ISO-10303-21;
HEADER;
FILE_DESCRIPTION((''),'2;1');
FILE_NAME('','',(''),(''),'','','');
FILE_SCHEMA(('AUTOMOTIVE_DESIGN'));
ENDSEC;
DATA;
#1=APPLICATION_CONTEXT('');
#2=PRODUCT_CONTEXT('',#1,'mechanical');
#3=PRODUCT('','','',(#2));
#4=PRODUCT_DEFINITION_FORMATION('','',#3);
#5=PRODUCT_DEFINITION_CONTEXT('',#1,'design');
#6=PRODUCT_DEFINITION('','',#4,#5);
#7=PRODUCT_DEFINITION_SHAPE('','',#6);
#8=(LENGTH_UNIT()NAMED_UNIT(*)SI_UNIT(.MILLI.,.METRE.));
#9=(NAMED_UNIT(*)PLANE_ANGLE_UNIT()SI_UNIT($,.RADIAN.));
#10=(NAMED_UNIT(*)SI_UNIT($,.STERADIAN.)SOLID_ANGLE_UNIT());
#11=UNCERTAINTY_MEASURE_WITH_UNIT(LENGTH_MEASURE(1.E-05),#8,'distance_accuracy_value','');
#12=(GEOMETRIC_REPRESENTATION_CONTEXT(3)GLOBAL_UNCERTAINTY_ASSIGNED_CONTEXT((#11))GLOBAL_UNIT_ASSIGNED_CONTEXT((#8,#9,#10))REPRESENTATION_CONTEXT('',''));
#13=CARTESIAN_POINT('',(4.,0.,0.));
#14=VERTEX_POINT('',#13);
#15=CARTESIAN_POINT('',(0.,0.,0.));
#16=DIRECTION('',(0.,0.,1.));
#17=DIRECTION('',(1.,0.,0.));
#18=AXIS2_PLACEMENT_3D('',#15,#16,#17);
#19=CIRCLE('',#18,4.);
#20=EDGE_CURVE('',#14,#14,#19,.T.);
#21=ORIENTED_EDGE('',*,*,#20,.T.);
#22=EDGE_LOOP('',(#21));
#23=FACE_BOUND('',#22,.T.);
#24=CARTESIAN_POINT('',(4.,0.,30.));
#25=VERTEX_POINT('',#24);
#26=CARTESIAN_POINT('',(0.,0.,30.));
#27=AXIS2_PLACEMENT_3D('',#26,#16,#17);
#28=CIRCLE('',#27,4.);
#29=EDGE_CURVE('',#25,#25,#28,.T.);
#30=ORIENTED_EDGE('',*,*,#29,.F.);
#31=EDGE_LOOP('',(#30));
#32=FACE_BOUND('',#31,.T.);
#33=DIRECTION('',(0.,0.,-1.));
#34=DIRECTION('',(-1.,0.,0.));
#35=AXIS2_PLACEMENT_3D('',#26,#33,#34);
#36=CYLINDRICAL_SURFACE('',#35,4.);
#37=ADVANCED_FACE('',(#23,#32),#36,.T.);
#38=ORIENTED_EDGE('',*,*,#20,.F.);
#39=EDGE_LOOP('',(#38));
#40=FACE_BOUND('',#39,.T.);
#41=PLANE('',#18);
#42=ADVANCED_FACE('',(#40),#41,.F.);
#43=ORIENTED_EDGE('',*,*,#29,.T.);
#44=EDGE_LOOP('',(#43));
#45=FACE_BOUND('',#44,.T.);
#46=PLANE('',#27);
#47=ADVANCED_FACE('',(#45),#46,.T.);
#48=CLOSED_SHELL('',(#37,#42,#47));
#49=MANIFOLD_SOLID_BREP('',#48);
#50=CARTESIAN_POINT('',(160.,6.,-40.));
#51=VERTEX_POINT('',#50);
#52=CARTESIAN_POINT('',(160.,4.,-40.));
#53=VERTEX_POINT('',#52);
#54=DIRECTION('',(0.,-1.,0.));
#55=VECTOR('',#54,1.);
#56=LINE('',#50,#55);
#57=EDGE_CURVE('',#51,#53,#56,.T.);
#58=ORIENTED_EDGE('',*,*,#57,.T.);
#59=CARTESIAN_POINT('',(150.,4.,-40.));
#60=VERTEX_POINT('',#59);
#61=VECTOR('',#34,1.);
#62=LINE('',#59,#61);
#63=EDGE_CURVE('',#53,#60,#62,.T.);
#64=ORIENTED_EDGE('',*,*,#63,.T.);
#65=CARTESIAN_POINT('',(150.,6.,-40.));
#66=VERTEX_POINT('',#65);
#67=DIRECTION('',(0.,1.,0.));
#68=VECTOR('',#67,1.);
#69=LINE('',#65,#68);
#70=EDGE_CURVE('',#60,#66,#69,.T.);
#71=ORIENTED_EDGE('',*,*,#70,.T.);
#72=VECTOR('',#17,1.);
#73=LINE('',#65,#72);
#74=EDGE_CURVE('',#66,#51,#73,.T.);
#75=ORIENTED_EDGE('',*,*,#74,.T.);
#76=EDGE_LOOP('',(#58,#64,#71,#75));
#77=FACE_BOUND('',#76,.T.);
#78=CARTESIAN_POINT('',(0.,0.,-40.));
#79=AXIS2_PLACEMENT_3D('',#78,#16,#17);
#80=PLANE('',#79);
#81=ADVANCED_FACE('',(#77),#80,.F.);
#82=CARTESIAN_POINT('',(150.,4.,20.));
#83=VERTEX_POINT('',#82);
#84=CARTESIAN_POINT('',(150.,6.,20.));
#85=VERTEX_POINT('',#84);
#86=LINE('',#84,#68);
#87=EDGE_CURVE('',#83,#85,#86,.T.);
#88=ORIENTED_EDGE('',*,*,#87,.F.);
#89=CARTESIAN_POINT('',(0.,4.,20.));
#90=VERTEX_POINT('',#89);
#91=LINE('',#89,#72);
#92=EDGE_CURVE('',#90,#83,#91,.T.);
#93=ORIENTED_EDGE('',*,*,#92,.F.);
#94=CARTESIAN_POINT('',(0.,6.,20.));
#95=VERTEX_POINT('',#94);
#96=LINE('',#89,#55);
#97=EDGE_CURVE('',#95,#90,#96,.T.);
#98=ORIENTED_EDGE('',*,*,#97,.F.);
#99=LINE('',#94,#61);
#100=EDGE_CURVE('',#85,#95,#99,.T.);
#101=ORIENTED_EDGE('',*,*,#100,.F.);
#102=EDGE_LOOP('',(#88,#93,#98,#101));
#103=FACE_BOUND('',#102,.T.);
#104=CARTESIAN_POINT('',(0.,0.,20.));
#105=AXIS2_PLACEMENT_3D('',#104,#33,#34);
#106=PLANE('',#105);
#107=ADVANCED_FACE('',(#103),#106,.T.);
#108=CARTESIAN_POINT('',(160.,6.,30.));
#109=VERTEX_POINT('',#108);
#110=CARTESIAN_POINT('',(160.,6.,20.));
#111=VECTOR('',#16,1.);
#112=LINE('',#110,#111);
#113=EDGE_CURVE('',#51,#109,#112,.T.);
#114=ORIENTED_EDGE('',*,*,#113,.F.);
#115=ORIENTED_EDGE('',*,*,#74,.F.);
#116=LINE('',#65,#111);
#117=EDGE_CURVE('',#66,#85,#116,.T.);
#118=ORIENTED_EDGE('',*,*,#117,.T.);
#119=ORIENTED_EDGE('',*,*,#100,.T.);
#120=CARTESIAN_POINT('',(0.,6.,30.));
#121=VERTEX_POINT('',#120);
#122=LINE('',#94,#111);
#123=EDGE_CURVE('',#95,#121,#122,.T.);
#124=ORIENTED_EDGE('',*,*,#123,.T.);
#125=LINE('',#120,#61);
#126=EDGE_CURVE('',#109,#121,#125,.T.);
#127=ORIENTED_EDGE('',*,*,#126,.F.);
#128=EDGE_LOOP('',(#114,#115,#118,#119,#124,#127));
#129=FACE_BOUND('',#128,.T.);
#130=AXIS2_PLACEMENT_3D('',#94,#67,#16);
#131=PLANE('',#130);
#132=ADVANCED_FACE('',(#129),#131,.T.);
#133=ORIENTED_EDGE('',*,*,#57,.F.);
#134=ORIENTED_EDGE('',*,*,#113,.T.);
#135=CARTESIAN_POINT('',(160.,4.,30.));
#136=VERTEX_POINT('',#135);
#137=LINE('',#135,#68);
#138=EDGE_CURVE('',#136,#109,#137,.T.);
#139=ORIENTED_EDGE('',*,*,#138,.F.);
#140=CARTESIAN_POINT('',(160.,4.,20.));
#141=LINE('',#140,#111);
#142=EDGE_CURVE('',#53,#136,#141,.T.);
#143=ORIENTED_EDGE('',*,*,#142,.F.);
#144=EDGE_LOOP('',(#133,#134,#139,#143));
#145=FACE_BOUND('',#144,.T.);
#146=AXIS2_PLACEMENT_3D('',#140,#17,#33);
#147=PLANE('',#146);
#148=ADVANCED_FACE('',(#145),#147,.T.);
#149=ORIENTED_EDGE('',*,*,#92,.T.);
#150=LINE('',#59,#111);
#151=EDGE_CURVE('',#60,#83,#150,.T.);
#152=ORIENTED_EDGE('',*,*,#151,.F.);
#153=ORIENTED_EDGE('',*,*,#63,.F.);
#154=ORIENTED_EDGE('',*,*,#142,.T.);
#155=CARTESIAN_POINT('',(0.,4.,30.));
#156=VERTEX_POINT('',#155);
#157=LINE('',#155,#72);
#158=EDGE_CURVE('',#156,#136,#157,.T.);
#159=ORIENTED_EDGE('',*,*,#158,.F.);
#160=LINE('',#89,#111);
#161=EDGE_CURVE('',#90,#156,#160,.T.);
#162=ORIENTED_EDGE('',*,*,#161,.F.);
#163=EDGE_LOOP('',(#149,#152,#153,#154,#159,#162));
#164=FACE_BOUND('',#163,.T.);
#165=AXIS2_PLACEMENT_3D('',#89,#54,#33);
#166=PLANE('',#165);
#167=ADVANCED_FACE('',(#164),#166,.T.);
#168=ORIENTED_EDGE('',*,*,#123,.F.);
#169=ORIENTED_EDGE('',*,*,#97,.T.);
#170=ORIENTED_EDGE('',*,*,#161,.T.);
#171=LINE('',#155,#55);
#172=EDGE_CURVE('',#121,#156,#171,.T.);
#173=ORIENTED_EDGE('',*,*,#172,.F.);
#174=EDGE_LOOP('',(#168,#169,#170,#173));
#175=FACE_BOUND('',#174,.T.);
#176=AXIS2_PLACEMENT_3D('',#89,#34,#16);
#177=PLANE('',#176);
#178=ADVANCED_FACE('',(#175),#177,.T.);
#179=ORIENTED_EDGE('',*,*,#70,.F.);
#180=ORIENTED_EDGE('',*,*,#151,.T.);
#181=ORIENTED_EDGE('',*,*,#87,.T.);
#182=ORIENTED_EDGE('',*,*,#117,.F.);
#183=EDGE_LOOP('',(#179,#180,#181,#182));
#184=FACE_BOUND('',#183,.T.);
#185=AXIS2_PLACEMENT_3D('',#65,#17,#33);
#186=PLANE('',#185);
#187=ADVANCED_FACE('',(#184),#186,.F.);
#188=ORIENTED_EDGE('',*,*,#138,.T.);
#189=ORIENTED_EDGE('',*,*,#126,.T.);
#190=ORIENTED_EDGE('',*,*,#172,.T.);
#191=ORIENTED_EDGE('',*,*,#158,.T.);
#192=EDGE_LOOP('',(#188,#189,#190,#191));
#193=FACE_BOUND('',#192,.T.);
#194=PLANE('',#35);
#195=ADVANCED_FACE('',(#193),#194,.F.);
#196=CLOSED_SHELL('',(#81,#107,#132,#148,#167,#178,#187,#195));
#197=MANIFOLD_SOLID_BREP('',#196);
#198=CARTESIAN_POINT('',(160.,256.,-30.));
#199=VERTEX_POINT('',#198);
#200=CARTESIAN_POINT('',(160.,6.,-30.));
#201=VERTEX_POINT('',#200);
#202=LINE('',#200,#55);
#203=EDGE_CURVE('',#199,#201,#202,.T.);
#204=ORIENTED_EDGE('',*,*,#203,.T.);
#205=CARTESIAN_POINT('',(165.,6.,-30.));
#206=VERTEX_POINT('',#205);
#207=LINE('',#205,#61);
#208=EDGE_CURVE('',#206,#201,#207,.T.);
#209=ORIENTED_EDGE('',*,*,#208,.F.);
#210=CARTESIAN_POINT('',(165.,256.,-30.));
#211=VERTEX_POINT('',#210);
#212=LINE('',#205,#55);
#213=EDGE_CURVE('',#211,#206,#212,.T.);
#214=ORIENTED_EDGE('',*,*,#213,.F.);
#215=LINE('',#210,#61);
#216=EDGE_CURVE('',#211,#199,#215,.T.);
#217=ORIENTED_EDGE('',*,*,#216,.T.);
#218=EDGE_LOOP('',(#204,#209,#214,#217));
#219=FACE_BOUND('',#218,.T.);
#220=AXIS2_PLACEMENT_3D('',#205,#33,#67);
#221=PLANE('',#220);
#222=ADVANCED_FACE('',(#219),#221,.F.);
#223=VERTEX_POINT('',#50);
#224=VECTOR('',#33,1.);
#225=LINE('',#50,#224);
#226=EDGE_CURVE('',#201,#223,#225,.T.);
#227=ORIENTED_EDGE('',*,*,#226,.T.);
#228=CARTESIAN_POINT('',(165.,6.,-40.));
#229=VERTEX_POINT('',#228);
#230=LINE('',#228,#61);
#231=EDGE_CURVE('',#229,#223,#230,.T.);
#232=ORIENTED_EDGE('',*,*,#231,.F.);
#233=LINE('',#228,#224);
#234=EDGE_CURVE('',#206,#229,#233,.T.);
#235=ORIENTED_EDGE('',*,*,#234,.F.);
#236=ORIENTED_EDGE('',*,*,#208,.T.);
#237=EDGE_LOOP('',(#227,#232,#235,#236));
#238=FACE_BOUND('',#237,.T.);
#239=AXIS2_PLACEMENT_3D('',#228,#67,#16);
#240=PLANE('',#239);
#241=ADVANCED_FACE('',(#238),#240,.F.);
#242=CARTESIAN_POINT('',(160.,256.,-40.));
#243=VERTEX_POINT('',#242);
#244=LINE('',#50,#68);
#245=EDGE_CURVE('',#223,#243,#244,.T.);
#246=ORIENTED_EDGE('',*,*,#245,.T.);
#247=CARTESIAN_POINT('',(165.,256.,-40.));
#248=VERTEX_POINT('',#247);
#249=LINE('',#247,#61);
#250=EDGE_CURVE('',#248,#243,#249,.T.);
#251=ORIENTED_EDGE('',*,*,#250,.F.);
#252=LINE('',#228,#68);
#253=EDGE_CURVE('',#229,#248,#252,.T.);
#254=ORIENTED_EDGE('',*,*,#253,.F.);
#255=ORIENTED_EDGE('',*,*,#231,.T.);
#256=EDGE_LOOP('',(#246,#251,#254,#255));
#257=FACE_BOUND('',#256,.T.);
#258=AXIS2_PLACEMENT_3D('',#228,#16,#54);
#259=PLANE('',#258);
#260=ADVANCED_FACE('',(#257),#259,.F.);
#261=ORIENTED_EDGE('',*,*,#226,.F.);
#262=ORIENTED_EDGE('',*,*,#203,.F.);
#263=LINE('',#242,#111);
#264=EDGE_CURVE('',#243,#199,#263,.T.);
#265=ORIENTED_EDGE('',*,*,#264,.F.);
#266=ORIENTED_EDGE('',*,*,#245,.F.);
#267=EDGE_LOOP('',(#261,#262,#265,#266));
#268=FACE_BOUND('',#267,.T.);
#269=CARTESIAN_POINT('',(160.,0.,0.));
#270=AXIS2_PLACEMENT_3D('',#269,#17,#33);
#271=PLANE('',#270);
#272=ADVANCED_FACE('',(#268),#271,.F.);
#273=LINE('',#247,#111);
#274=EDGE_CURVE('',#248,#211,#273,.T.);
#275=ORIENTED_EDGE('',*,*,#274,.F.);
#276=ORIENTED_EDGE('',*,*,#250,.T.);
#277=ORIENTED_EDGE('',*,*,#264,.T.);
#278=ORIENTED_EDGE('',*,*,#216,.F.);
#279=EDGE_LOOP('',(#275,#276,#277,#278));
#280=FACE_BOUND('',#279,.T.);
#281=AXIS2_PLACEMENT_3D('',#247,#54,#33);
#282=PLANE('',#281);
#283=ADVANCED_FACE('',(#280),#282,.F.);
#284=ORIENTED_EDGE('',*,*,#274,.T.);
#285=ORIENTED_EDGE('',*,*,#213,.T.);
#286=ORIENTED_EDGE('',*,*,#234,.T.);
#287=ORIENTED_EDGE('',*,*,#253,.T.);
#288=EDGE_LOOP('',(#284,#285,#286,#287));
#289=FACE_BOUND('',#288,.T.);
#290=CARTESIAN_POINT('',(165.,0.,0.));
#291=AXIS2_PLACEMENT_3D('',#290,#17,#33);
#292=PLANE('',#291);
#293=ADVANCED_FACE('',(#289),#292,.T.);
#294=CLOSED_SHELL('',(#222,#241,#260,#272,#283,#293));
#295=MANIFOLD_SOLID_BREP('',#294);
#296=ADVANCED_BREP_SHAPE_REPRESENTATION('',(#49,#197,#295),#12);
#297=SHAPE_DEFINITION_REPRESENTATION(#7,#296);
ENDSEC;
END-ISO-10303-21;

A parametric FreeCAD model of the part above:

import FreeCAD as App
import Part
import Sketcher

V = App.Vector
Q = App.Units.Quantity


def add_polygon(sketch, points):
    """Adds a closed chain of lines whose ends are joined by coincident constraints."""
    first, n = sketch.GeometryCount, len(points)
    for a, b in zip(points, points[1:] + points[:1]):
        sketch.addGeometry(Part.LineSegment(App.Vector(*a, 0), App.Vector(*b, 0)), False)
    for i in range(n):
        sketch.addConstraint(Sketcher.Constraint("Coincident", first + i, 2, first + (i + 1) % n, 1))

doc = App.newDocument("Part")
body = doc.addObject("PartDesign::Body", "Body")

# Sketch on XY plane
sketch1 = doc.addObject("Sketcher::SketchObject", "Sketch")
body.addObject(sketch1)
sketch1.AttachmentSupport = (doc.XY_Plane, [""])
sketch1.MapMode = "FlatFace"
sketch1.addGeometry(Part.Circle(V(0, 0, 0), V(0, 0, 1), 4), False)
sketch1.addConstraint([
    Sketcher.Constraint("Coincident", 0, 3, -1, 1),
    Sketcher.Constraint("Diameter", 0, Q("8 mm")),
])
pad1 = doc.addObject("PartDesign::Pad", "Pad")
body.addObject(pad1)
pad1.Profile = sketch1
pad1.Length = 30
body2 = doc.addObject("PartDesign::Body", "Body001")

# Sketch on XY plane
sketch2 = doc.addObject("Sketcher::SketchObject", "Sketch001")
body2.addObject(sketch2)
sketch2.AttachmentSupport = (doc.getObject("XY_Plane001"), [""])
sketch2.MapMode = "FlatFace"
sketch2.AttachmentOffset = App.Placement(V(0, 0, 30), App.Rotation())
add_polygon(sketch2, [(0, 6), (0, 4), (160, 4), (160, 6)])  # lines 0-3
sketch2.addConstraint([
    Sketcher.Constraint("Vertical", 0),
    Sketcher.Constraint("Horizontal", 1),
    Sketcher.Constraint("Vertical", 2),
    Sketcher.Constraint("Horizontal", 3),
    Sketcher.Constraint("PointOnObject", 0, 2, -2),
    Sketcher.Constraint("DistanceX", 1, 1, 1, 2, Q("160 mm")),
    Sketcher.Constraint("DistanceY", 0, 2, 0, 1, Q("2 mm")),
    Sketcher.Constraint("DistanceY", -1, 1, 0, 2, Q("4 mm")),
])
pad2 = doc.addObject("PartDesign::Pad", "Pad001")
body2.addObject(pad2)
pad2.Profile = sketch2
pad2.Length = 10
pad2.Reversed = True

# Sketch on XY plane
sketch3 = doc.addObject("Sketcher::SketchObject", "Sketch002")
body2.addObject(sketch3)
sketch3.AttachmentSupport = (doc.getObject("XY_Plane001"), [""])
sketch3.MapMode = "FlatFace"
sketch3.AttachmentOffset = App.Placement(V(0, 0, 20), App.Rotation())
add_polygon(sketch3, [(160, 6), (160, 4), (150, 4), (150, 6)])  # lines 0-3
sketch3.addConstraint([
    Sketcher.Constraint("Vertical", 0),
    Sketcher.Constraint("Horizontal", 1),
    Sketcher.Constraint("Vertical", 2),
    Sketcher.Constraint("Horizontal", 3),
    Sketcher.Constraint("DistanceX", 1, 2, 1, 1, Q("10 mm")),
    Sketcher.Constraint("DistanceY", 0, 2, 0, 1, Q("2 mm")),
    Sketcher.Constraint("DistanceX", -1, 1, 0, 2, Q("160 mm")),
    Sketcher.Constraint("DistanceY", -1, 1, 0, 2, Q("4 mm")),
])
pad3 = doc.addObject("PartDesign::Pad", "Pad002")
body2.addObject(pad3)
pad3.Profile = sketch3
pad3.Length = 60
pad3.Reversed = True
body3 = doc.addObject("PartDesign::Body", "Body002")

# Sketch on YZ plane
sketch4 = doc.addObject("Sketcher::SketchObject", "Sketch003")
body3.addObject(sketch4)
sketch4.AttachmentSupport = (doc.getObject("YZ_Plane002"), [""])
sketch4.MapMode = "FlatFace"
sketch4.AttachmentOffset = App.Placement(V(0, 0, 160), App.Rotation())
add_polygon(sketch4, [(256, -30), (6, -30), (6, -40), (256, -40)])  # lines 0-3
sketch4.addConstraint([
    Sketcher.Constraint("Horizontal", 0),
    Sketcher.Constraint("Vertical", 1),
    Sketcher.Constraint("Horizontal", 2),
    Sketcher.Constraint("Vertical", 3),
    Sketcher.Constraint("DistanceX", 0, 2, 0, 1, Q("250 mm")),
    Sketcher.Constraint("DistanceY", 1, 2, 1, 1, Q("10 mm")),
    Sketcher.Constraint("DistanceX", -1, 1, 0, 2, Q("6 mm")),
    Sketcher.Constraint("DistanceY", 0, 2, -1, 1, Q("30 mm")),
])
pad4 = doc.addObject("PartDesign::Pad", "Pad003")
body3.addObject(pad4)
pad4.Profile = sketch4
pad4.Length = 5

doc.recompute()
